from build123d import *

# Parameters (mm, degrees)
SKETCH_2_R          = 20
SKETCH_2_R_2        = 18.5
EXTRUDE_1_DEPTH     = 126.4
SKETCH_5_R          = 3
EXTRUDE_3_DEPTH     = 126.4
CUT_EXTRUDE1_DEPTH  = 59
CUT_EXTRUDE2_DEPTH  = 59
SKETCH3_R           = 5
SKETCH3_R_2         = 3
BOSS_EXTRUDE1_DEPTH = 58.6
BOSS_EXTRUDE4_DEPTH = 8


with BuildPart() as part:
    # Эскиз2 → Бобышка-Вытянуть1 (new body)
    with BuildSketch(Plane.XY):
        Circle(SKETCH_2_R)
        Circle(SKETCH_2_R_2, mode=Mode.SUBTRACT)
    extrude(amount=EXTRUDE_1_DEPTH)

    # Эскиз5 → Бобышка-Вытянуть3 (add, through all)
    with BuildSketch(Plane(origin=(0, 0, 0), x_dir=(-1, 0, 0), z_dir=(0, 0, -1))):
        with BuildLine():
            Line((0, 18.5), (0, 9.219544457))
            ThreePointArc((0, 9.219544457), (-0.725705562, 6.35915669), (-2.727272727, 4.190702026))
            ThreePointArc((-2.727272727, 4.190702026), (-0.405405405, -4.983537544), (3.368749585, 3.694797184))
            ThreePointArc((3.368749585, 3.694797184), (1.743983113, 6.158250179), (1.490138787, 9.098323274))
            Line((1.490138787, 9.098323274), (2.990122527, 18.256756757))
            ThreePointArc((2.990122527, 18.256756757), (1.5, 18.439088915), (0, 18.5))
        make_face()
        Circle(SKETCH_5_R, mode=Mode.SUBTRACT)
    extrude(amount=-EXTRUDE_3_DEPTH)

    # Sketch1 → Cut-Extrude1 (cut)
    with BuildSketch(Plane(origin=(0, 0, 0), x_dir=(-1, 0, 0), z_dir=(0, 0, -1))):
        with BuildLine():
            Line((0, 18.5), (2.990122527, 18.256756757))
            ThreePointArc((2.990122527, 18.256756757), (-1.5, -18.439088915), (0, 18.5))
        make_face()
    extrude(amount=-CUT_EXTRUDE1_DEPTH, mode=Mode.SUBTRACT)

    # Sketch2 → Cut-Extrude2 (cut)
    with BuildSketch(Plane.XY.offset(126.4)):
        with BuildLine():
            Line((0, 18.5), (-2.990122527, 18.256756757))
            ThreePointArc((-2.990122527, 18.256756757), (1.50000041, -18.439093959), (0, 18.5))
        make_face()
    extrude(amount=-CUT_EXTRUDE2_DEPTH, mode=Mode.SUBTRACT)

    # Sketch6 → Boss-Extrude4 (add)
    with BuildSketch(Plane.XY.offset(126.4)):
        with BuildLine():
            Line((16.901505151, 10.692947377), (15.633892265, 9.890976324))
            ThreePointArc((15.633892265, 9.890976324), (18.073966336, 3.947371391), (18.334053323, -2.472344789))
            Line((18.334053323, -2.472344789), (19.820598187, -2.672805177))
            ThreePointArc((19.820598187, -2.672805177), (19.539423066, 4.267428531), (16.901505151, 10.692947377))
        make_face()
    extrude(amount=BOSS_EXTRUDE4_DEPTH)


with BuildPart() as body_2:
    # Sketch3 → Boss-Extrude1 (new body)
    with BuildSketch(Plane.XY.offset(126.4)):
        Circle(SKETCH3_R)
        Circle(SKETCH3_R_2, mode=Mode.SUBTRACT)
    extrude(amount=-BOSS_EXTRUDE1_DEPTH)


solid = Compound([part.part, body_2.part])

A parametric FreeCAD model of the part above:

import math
import FreeCAD as App
import Part
import Sketcher
from FreeCAD import Vector
Q = App.Units.Quantity

doc = App.newDocument("Part")
body = doc.addObject("PartDesign::Body", "Body")

sketch1 = body.newObject("Sketcher::SketchObject", "Sketch")
sketch1.AttachmentSupport = (doc.getObject("XY_Plane"), [""])
sketch1.MapMode = "FlatFace"
sketch1.addGeometry([
    Part.Circle(Vector(0, 0, 0), Vector(0, 0, 1), 20),
    Part.Circle(Vector(0, 0, 0), Vector(0, 0, 1), 18.5),
], False)
sketch1.addConstraint([
    Sketcher.Constraint("Coincident", 0, 3, -1, 1),
    Sketcher.Constraint("Coincident", 1, 3, -1, 1),
    Sketcher.Constraint("Diameter", 0, 40.0),
    Sketcher.Constraint("Diameter", 1, 37.0),
])
pad1 = body.newObject("PartDesign::Pad", "Pad")
pad1.Profile = sketch1
pad1.Length = 126.4

sketch2 = body.newObject("Sketcher::SketchObject", "Sketch001")
sketch2.AttachmentSupport = (doc.getObject("XY_Plane"), [""])
sketch2.MapMode = "FlatFace"
sketch2.addGeometry([
    Part.LineSegment(Vector(0, 18.5, 0), Vector(0, 9.219544, 0)),
    Part.ArcOfCircle(Part.Circle(Vector(6, 9.219544, 0), Vector(0, 0, 1), 6), math.radians(-180), math.radians(-123.055731)),
    Part.ArcOfCircle(Part.Circle(Vector(0, 0, 0), Vector(0, 0, 1), 5), math.radians(132.357149), math.radians(416.944269)),
    Part.ArcOfCircle(Part.Circle(Vector(-7.411249, 8.128554, 0), Vector(0, 0, 1), 6), math.radians(-47.642851), math.radians(9.301418)),
    Part.LineSegment(Vector(-1.490139, 9.098323, 0), Vector(-2.990123, 18.256757, 0)),
    Part.ArcOfCircle(Part.Circle(Vector(0, 0, 0), Vector(0, 0, 1), 18.5), math.radians(90), math.radians(99.301418)),
    Part.Circle(Vector(0, 0, 0), Vector(0, 0, 1), 3),
], False)
sketch2.addConstraint([
    Sketcher.Constraint("Tangent", 0, 2, 1, 1),
    Sketcher.Constraint("Tangent", 1, 2, 2, 2),
    Sketcher.Constraint("Tangent", 2, 1, 3, 1),
    Sketcher.Constraint("Tangent", 3, 2, 4, 1),
    Sketcher.Constraint("Coincident", 4, 2, 5, 2),
    Sketcher.Constraint("Coincident", 5, 1, 0, 1),
    Sketcher.Constraint("Vertical", 0),
    Sketcher.Constraint("Coincident", 2, 3, -1, 1),
    Sketcher.Constraint("Coincident", 5, 3, -1, 1),
    Sketcher.Constraint("Coincident", 6, 3, -1, 1),
    Sketcher.Constraint("Equal", 1, 3),
    Sketcher.Constraint("PointOnObject", 0, 2, -2),
    Sketcher.Constraint("Diameter", 6, 6.0),
    Sketcher.Constraint("Radius", 1, 6.0),
    Sketcher.Constraint("Radius", 2, 5.0),
    Sketcher.Constraint("Radius", 5, 18.5),
    Sketcher.Constraint("DistanceX", 3, 3, 2, 1, 4.0425),
    Sketcher.Constraint("DistanceX", 3, 2, -1, 1, 1.490139),
])
pad2 = body.newObject("PartDesign::Pad", "Pad001")
pad2.Profile = sketch2
pad2.Length = 126.4

sketch3 = body.newObject("Sketcher::SketchObject", "Sketch002")
sketch3.AttachmentSupport = (doc.getObject("XY_Plane"), [""])
sketch3.MapMode = "FlatFace"
sketch3.addGeometry([
    Part.LineSegment(Vector(-2.990123, 18.256757, 0), Vector(0, 18.5, 0)),
    Part.ArcOfCircle(Part.Circle(Vector(0, 0, 0), Vector(0, 0, 1), 18.5), math.radians(99.301418), math.radians(450)),
], False)
sketch3.addConstraint([
    Sketcher.Constraint("Coincident", 0, 1, 1, 1),
    Sketcher.Constraint("Coincident", 1, 2, 0, 2),
    Sketcher.Constraint("Coincident", 1, 3, -1, 1),
    Sketcher.Constraint("PointOnObject", 1, 2, -2),
    Sketcher.Constraint("Radius", 1, 18.5),
    Sketcher.Constraint("Distance", 0, 3.0),
])
pocket1 = body.newObject("PartDesign::Pocket", "Pocket")
pocket1.Profile = sketch3
pocket1.Length = 59
pocket1.Reversed = True

sketch4 = body.newObject("Sketcher::SketchObject", "Sketch003")
sketch4.AttachmentSupport = (doc.getObject("XY_Plane"), [""])
sketch4.MapMode = "FlatFace"
sketch4.AttachmentOffset = App.Placement(Vector(0, 0, 126.4), App.Rotation())
sketch4.addGeometry([
    Part.LineSegment(Vector(0, 18.5, 0), Vector(-2.990123, 18.256757, 0)),
    Part.ArcOfCircle(Part.Circle(Vector(0, -0.000003, 0), Vector(0, 0, 1), 18.500003), math.radians(99.301417), math.radians(450.000001)),
], False)
sketch4.addConstraint([
    Sketcher.Constraint("Coincident", 0, 1, 1, 2),
    Sketcher.Constraint("Coincident", 1, 1, 0, 2),
    Sketcher.Constraint("Coincident", 1, 3, -1, 1),
    Sketcher.Constraint("PointOnObject", 0, 1, -2),
    Sketcher.Constraint("Distance", 0, 3.0),
    Sketcher.Constraint("DistanceY", -1, 1, 0, 1, 18.5),
])
pocket2 = body.newObject("PartDesign::Pocket", "Pocket001")
pocket2.Profile = sketch4
pocket2.Length = 59

sketch5 = body.newObject("Sketcher::SketchObject", "Sketch004")
sketch5.AttachmentSupport = (doc.getObject("XY_Plane"), [""])
sketch5.MapMode = "FlatFace"
sketch5.AttachmentOffset = App.Placement(Vector(0, 0, 126.4), App.Rotation())
sketch5.addGeometry([
    Part.LineSegment(Vector(16.901505, 10.692947, 0), Vector(15.633892, 9.890976, 0)),
    Part.ArcOfCircle(Part.Circle(Vector(0, 0, 0), Vector(0, 0, 1), 18.5), math.radians(-7.68), math.radians(32.32)),
    Part.LineSegment(Vector(18.334053, -2.472345, 0), Vector(19.820598, -2.672805, 0)),
    Part.ArcOfCircle(Part.Circle(Vector(0, 0, 0), Vector(0, 0, 1), 20), math.radians(-7.68), math.radians(32.32)),
], False)
sketch5.addConstraint([
    Sketcher.Constraint("Coincident", 0, 2, 1, 2),
    Sketcher.Constraint("Coincident", 1, 1, 2, 1),
    Sketcher.Constraint("Coincident", 2, 2, 3, 1),
    Sketcher.Constraint("Coincident", 3, 2, 0, 1),
    Sketcher.Constraint("Coincident", 1, 3, -1, 1),
    Sketcher.Constraint("Coincident", 3, 3, -1, 1),
    Sketcher.Constraint("Radius", 3, 20.0),
    Sketcher.Constraint("Radius", 1, 18.5),
    Sketcher.Constraint("Angle", 0, Q("-147.68 deg")),
    Sketcher.Constraint("Angle", 2, Q("-7.68 deg")),
    Sketcher.Constraint("DistanceX", -1, 1, 2, 2, 19.820598),
    Sketcher.Constraint("DistanceX", 0, 2, 1, 1, 2.700161),
])
pad3 = body.newObject("PartDesign::Pad", "Pad002")
pad3.Profile = sketch5
pad3.Length = 8
body2 = doc.addObject("PartDesign::Body", "Body001")

sketch6 = body2.newObject("Sketcher::SketchObject", "Sketch005")
sketch6.AttachmentSupport = (doc.getObject("XY_Plane001"), [""])
sketch6.MapMode = "FlatFace"
sketch6.AttachmentOffset = App.Placement(Vector(0, 0, 126.4), App.Rotation())
sketch6.addGeometry([
    Part.Circle(Vector(0, 0, 0), Vector(0, 0, 1), 5),
    Part.Circle(Vector(0, 0, 0), Vector(0, 0, 1), 3),
], False)
sketch6.addConstraint([
    Sketcher.Constraint("Coincident", 0, 3, -1, 1),
    Sketcher.Constraint("Coincident", 1, 3, -1, 1),
    Sketcher.Constraint("Diameter", 0, 10.0),
    Sketcher.Constraint("Diameter", 1, 6.0),
])
pad4 = body2.newObject("PartDesign::Pad", "Pad003")
pad4.Profile = sketch6
pad4.Length = 58.6
pad4.Reversed = True

doc.recompute()
